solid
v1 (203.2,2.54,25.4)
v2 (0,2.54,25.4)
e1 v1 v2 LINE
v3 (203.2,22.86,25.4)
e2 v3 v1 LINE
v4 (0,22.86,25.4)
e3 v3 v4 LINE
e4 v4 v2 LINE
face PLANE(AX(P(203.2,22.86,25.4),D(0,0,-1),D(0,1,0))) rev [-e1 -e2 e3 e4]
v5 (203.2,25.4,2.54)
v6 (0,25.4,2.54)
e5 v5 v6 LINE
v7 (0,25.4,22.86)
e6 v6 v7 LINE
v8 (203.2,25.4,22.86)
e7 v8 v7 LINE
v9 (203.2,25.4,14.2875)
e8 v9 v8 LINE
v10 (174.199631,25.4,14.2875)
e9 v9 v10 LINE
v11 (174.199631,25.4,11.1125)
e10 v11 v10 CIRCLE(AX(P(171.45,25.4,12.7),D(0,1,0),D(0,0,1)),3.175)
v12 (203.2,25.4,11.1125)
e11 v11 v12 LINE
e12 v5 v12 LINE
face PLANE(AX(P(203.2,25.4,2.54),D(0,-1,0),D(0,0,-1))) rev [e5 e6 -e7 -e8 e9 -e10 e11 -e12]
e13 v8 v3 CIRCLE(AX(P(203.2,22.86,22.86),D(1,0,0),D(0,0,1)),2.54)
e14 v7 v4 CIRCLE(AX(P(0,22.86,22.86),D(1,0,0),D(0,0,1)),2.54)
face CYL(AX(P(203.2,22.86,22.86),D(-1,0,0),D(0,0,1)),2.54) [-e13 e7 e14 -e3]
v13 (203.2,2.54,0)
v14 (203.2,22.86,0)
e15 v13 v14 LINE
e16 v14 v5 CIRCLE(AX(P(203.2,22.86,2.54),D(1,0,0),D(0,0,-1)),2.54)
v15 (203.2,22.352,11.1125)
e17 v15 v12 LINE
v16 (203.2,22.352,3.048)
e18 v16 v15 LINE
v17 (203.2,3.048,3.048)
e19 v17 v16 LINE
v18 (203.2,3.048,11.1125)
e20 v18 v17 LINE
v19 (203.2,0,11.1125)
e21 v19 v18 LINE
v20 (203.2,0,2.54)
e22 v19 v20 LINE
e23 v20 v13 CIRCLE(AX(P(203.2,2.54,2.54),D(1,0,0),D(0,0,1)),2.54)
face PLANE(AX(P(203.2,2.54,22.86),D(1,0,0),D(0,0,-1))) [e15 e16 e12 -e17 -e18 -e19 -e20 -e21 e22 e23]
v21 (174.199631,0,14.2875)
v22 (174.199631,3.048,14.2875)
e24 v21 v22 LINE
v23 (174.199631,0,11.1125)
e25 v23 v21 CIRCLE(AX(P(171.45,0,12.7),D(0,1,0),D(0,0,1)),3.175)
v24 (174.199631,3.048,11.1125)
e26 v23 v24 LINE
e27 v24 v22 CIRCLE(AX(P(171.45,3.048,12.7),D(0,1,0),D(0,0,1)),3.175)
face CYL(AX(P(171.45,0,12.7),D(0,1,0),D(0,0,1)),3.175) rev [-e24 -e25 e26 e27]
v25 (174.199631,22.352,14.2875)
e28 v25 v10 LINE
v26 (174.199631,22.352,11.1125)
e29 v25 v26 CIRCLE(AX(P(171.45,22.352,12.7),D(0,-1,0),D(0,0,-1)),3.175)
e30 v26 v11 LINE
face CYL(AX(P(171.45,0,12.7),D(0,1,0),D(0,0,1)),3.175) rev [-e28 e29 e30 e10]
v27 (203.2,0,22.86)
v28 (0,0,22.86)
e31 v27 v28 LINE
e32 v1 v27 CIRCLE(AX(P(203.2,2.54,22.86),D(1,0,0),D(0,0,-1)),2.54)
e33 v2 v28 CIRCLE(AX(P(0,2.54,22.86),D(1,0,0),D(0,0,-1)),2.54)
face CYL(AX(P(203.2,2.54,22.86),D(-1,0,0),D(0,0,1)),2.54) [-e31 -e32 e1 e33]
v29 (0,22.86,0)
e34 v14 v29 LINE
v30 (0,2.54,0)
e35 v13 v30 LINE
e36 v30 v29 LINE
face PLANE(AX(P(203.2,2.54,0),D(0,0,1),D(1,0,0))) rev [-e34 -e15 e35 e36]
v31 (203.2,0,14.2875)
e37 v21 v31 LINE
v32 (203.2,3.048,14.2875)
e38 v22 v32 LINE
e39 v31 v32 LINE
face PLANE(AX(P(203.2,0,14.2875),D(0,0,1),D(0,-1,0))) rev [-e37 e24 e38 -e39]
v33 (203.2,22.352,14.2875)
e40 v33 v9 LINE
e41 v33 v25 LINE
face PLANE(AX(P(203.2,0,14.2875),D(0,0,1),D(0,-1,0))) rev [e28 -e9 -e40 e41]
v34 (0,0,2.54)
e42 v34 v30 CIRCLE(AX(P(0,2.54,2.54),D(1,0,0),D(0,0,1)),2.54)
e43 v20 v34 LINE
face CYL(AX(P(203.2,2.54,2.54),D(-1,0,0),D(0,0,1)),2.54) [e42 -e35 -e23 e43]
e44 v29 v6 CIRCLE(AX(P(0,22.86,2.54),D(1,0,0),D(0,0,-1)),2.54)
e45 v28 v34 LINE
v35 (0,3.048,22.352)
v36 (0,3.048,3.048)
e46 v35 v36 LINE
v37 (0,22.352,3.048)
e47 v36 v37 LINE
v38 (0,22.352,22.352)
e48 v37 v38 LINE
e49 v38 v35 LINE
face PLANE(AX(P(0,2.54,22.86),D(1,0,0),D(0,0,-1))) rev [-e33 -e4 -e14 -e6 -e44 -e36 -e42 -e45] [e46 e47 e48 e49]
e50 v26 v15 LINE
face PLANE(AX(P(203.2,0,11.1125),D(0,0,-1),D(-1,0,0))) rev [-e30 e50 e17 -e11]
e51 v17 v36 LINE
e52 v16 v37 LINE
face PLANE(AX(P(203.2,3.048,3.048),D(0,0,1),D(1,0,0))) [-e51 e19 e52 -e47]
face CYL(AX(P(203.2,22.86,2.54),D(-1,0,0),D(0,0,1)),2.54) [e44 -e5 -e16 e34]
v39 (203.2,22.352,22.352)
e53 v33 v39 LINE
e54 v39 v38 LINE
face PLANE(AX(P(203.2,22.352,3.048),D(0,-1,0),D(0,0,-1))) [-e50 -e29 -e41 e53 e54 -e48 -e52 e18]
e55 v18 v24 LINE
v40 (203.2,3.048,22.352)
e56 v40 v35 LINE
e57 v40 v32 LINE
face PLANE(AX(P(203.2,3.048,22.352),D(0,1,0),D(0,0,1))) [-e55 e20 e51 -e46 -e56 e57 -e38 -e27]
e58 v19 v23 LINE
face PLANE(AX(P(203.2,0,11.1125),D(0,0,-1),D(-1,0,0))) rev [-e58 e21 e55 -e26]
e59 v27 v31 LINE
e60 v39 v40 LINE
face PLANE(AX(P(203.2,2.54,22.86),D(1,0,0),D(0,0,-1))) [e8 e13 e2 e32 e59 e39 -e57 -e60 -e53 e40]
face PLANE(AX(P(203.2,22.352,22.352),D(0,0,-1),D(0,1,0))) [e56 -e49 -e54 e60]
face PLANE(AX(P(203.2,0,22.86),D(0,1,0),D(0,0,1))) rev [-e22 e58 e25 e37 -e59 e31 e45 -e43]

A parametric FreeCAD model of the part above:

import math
import FreeCAD as App
import Part
import Sketcher
from FreeCAD import Vector
Q = App.Units.Quantity

doc = App.newDocument("Part")
body = doc.addObject("PartDesign::Body", "Body")

# Sketch on YZ plane
sketch1 = body.newObject("Sketcher::SketchObject", "Sketch")
sketch1.AttachmentSupport = (doc.getObject("YZ_Plane"), [""])
sketch1.MapMode = "FlatFace"
sketch1.addGeometry(Part.LineSegment(Vector(2.5, 0, 0), Vector(22.9, 0, 0)), False)
sketch1.addGeometry(Part.ArcOfCircle(Part.Circle(Vector(22.9, 2.5, 0), Vector(0, 0, 1), 2.5), math.radians(-90), math.radians(0)), False)
sketch1.addGeometry(Part.LineSegment(Vector(25.4, 2.5, 0), Vector(25.4, 22.9, 0)), False)
sketch1.addGeometry(Part.ArcOfCircle(Part.Circle(Vector(22.9, 22.9, 0), Vector(0, 0, 1), 2.5), math.radians(0), math.radians(90)), False)
sketch1.addGeometry(Part.LineSegment(Vector(22.9, 25.4, 0), Vector(2.5, 25.4, 0)), False)
sketch1.addGeometry(Part.ArcOfCircle(Part.Circle(Vector(2.5, 22.9, 0), Vector(0, 0, 1), 2.5), math.radians(90), math.radians(180)), False)
sketch1.addGeometry(Part.LineSegment(Vector(0, 22.9, 0), Vector(0, 2.5, 0)), False)
sketch1.addGeometry(Part.ArcOfCircle(Part.Circle(Vector(2.5, 2.5, 0), Vector(0, 0, 1), 2.5), math.radians(-180), math.radians(-90)), False)
sketch1.addGeometry(Part.LineSegment(Vector(3, 3, 0), Vector(3, 22.4, 0)), False)
sketch1.addGeometry(Part.LineSegment(Vector(3, 22.4, 0), Vector(22.4, 22.4, 0)), False)
sketch1.addGeometry(Part.LineSegment(Vector(22.4, 22.4, 0), Vector(22.4, 3, 0)), False)
sketch1.addGeometry(Part.LineSegment(Vector(22.4, 3, 0), Vector(3, 3, 0)), False)
sketch1.addConstraint(Sketcher.Constraint("Tangent", 0, 2, 1, 1))
sketch1.addConstraint(Sketcher.Constraint("Tangent", 1, 2, 2, 1))
sketch1.addConstraint(Sketcher.Constraint("Tangent", 2, 2, 3, 1))
sketch1.addConstraint(Sketcher.Constraint("Tangent", 3, 2, 4, 1))
sketch1.addConstraint(Sketcher.Constraint("Tangent", 4, 2, 5, 1))
sketch1.addConstraint(Sketcher.Constraint("Tangent", 5, 2, 6, 1))
sketch1.addConstraint(Sketcher.Constraint("Tangent", 6, 2, 7, 1))
sketch1.addConstraint(Sketcher.Constraint("Tangent", 7, 2, 0, 1))
sketch1.addConstraint(Sketcher.Constraint("Coincident", 8, 2, 9, 1))
sketch1.addConstraint(Sketcher.Constraint("Coincident", 9, 2, 10, 1))
sketch1.addConstraint(Sketcher.Constraint("Coincident", 10, 2, 11, 1))
sketch1.addConstraint(Sketcher.Constraint("Coincident", 11, 2, 8, 1))
sketch1.addConstraint(Sketcher.Constraint("Horizontal", 0))
sketch1.addConstraint(Sketcher.Constraint("Vertical", 2))
sketch1.addConstraint(Sketcher.Constraint("Horizontal", 4))
sketch1.addConstraint(Sketcher.Constraint("Vertical", 6))
sketch1.addConstraint(Sketcher.Constraint("Vertical", 8))
sketch1.addConstraint(Sketcher.Constraint("Horizontal", 9))
sketch1.addConstraint(Sketcher.Constraint("Vertical", 10))
sketch1.addConstraint(Sketcher.Constraint("Horizontal", 11))
sketch1.addConstraint(Sketcher.Constraint("Equal", 1, 3))
sketch1.addConstraint(Sketcher.Constraint("Equal", 3, 5))
sketch1.addConstraint(Sketcher.Constraint("Equal", 5, 7))
sketch1.addConstraint(Sketcher.Constraint("PointOnObject", 0, 2, -1))
sketch1.addConstraint(Sketcher.Constraint("PointOnObject", 5, 2, -2))
sketch1.addConstraint(Sketcher.Constraint("Equal", 4, 2))
sketch1.addConstraint(Sketcher.Constraint("Equal", 11, 8))
sketch1.addConstraint(Sketcher.Constraint("Radius", 1, Q("0.1 in")))
sketch1.addConstraint(Sketcher.Constraint("DistanceX", 0, 1, 0, 2, Q("0.8 in")))
sketch1.addConstraint(Sketcher.Constraint("DistanceX", 9, 1, 9, 2, Q("0.76 in")))
sketch1.addConstraint(Sketcher.Constraint("DistanceX", -1, 1, 8, 2, Q("0.12 in")))
sketch1.addConstraint(Sketcher.Constraint("DistanceY", -1, 1, 8, 2, Q("0.88 in")))
pad1 = body.newObject("PartDesign::Pad", "Pad")
pad1.Profile = sketch1
pad1.Length = Q("8 in")

# Sketch on XZ plane
sketch2 = body.newObject("Sketcher::SketchObject", "Sketch001")
sketch2.AttachmentSupport = (doc.getObject("XZ_Plane"), [""])
sketch2.MapMode = "FlatFace"
sketch2.AttachmentOffset = App.Placement(Vector(0, 0, -1 * 25.4), App.Rotation())
sketch2.addGeometry(Part.LineSegment(Vector(203.2, 11.1, 0), Vector(174.2, 11.1, 0)), False)
sketch2.addGeometry(Part.ArcOfCircle(Part.Circle(Vector(171.4, 12.7, 0), Vector(0, 0, 1), 3.2), math.radians(30), math.radians(330)), False)
sketch2.addGeometry(Part.LineSegment(Vector(174.2, 14.3, 0), Vector(203.2, 14.3, 0)), False)
sketch2.addGeometry(Part.LineSegment(Vector(203.2, 14.3, 0), Vector(203.2, 11.1, 0)), False)
sketch2.addConstraint(Sketcher.Constraint("Coincident", 0, 2, 1, 2))
sketch2.addConstraint(Sketcher.Constraint("Coincident", 1, 1, 2, 1))
sketch2.addConstraint(Sketcher.Constraint("Coincident", 2, 2, 3, 1))
sketch2.addConstraint(Sketcher.Constraint("Coincident", 3, 2, 0, 1))
sketch2.addConstraint(Sketcher.Constraint("Horizontal", 0))
sketch2.addConstraint(Sketcher.Constraint("Horizontal", 2))
sketch2.addConstraint(Sketcher.Constraint("Vertical", 3))
sketch2.addConstraint(Sketcher.Constraint("Vertical", 0, 2, 1, 1))
sketch2.addConstraint(Sketcher.Constraint("DistanceX", -1, 1, 2, 2, Q("8 in")))
sketch2.addConstraint(Sketcher.Constraint("Radius", 1, Q("0.125 in")))
sketch2.addConstraint(Sketcher.Constraint("DistanceY", -1, 1, 1, 3, Q("0.5 in")))
sketch2.addConstraint(Sketcher.Constraint("DistanceY", 3, 2, 3, 1, Q("0.125 in")))
sketch2.addConstraint(Sketcher.Constraint("DistanceX", -1, 1, 1, 3, Q("6.75 in")))
pocket1 = body.newObject("PartDesign::Pocket", "Pocket")
pocket1.Profile = sketch2
pocket1.Type = "ThroughAll"
pocket1.Midplane = True

doc.recompute()
